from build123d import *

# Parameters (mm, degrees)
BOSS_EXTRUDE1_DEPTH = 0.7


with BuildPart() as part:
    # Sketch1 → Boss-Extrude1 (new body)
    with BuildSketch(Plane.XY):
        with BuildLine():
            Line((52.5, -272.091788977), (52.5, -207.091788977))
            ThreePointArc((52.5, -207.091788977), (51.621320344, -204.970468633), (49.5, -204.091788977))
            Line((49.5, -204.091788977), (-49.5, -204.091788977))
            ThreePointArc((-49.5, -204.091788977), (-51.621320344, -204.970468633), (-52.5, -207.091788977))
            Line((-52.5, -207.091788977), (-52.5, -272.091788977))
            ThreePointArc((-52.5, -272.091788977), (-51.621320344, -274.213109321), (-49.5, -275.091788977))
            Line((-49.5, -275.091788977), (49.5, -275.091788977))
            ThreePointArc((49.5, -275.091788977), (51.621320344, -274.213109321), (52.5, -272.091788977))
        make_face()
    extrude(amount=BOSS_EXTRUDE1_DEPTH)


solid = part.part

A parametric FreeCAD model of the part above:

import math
import FreeCAD as App
import Part
import Sketcher
from FreeCAD import Vector
Q = App.Units.Quantity

doc = App.newDocument("Part")
body = doc.addObject("PartDesign::Body", "Body")

sketch1 = body.newObject("Sketcher::SketchObject", "Sketch")
sketch1.AttachmentSupport = (doc.getObject("XY_Plane"), [""])
sketch1.MapMode = "FlatFace"
sketch1.addGeometry(Part.LineSegment(Vector(52.5, -272.1, 0), Vector(52.5, -207.1, 0)), False)
sketch1.addGeometry(Part.ArcOfCircle(Part.Circle(Vector(49.5, -207.1, 0), Vector(0, 0, 1), 3), math.radians(0), math.radians(90)), False)
sketch1.addGeometry(Part.LineSegment(Vector(49.5, -204.1, 0), Vector(-49.5, -204.1, 0)), False)
sketch1.addGeometry(Part.ArcOfCircle(Part.Circle(Vector(-49.5, -207.1, 0), Vector(0, 0, 1), 3), math.radians(90), math.radians(180)), False)
sketch1.addGeometry(Part.LineSegment(Vector(-52.5, -207.1, 0), Vector(-52.5, -272.1, 0)), False)
sketch1.addGeometry(Part.ArcOfCircle(Part.Circle(Vector(-49.5, -272.1, 0), Vector(0, 0, 1), 3), math.radians(180), math.radians(270)), False)
sketch1.addGeometry(Part.LineSegment(Vector(-49.5, -275.1, 0), Vector(49.5, -275.1, 0)), False)
sketch1.addGeometry(Part.ArcOfCircle(Part.Circle(Vector(49.5, -272.1, 0), Vector(0, 0, 1), 3), math.radians(-90), math.radians(0)), False)
sketch1.addConstraint(Sketcher.Constraint("Tangent", 0, 2, 1, 1))
sketch1.addConstraint(Sketcher.Constraint("Tangent", 1, 2, 2, 1))
sketch1.addConstraint(Sketcher.Constraint("Tangent", 2, 2, 3, 1))
sketch1.addConstraint(Sketcher.Constraint("Tangent", 3, 2, 4, 1))
sketch1.addConstraint(Sketcher.Constraint("Tangent", 4, 2, 5, 1))
sketch1.addConstraint(Sketcher.Constraint("Tangent", 5, 2, 6, 1))
sketch1.addConstraint(Sketcher.Constraint("Tangent", 6, 2, 7, 1))
sketch1.addConstraint(Sketcher.Constraint("Tangent", 7, 2, 0, 1))
sketch1.addConstraint(Sketcher.Constraint("Vertical", 0))
sketch1.addConstraint(Sketcher.Constraint("Horizontal", 2))
sketch1.addConstraint(Sketcher.Constraint("Vertical", 4))
sketch1.addConstraint(Sketcher.Constraint("Horizontal", 6))
sketch1.addConstraint(Sketcher.Constraint("Equal", 1, 3))
sketch1.addConstraint(Sketcher.Constraint("Equal", 3, 5))
sketch1.addConstraint(Sketcher.Constraint("Equal", 5, 7))
sketch1.addConstraint(Sketcher.Constraint("Radius", 1, Q("3 mm")))
sketch1.addConstraint(Sketcher.Constraint("DistanceX", 2, 2, 2, 1, Q("99 mm")))
sketch1.addConstraint(Sketcher.Constraint("DistanceY", 0, 1, 0, 2, Q("65 mm")))
sketch1.addConstraint(Sketcher.Constraint("DistanceX", -1, 1, 1, 3, Q("49.5 mm")))
sketch1.addConstraint(Sketcher.Constraint("DistanceY", 1, 3, -1, 1, Q("207.091789 mm")))
pad1 = body.newObject("PartDesign::Pad", "Pad")
pad1.Profile = sketch1
pad1.Length = 0.7

doc.recompute()
